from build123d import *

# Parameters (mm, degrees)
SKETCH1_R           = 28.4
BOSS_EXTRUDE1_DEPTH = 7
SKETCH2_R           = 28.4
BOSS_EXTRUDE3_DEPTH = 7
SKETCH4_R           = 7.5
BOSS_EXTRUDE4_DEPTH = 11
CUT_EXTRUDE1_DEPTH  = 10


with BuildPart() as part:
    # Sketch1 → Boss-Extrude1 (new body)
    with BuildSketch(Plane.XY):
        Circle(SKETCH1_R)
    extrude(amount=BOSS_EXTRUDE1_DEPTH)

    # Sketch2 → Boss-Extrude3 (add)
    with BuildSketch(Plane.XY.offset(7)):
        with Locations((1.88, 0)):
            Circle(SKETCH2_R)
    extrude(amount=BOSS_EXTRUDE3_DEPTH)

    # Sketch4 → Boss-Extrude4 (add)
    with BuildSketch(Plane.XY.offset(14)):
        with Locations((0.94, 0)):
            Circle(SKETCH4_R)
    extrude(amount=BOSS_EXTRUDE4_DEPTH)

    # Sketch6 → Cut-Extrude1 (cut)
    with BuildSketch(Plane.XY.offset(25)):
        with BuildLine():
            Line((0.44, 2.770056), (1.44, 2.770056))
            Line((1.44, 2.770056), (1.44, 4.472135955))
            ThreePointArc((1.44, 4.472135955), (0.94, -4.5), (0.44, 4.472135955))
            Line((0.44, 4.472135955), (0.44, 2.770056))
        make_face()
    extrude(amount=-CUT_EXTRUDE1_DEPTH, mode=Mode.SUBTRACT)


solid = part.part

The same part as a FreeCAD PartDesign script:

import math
import FreeCAD as App
import Part
import Sketcher

doc = App.newDocument("Part")
body = doc.addObject("PartDesign::Body", "Body")

sketch1 = body.newObject("Sketcher::SketchObject", "Sketch")
sketch1.AttachmentSupport = (doc.getObject("XY_Plane"), [""])
sketch1.MapMode = "FlatFace"
sketch1.addGeometry(Part.Circle(App.Vector(0, 0, 0), App.Vector(0, 0, 1), 28), False)
sketch1.addConstraint([
    Sketcher.Constraint("Coincident", 0, 3, -1, 1),
    Sketcher.Constraint("Diameter", 0, 56.8),
])
pad1 = body.newObject("PartDesign::Pad", "Pad")
pad1.Profile = sketch1
pad1.Length = 7

sketch2 = body.newObject("Sketcher::SketchObject", "Sketch001")
sketch2.AttachmentSupport = (doc.getObject("XY_Plane"), [""])
sketch2.MapMode = "FlatFace"
sketch2.AttachmentOffset = App.Placement(App.Vector(0, 0, 7), App.Rotation())
sketch2.addGeometry(Part.Circle(App.Vector(2, 0, 0), App.Vector(0, 0, 1), 28), False)
sketch2.addConstraint([
    Sketcher.Constraint("PointOnObject", 0, 3, -1),
    Sketcher.Constraint("Diameter", 0, 56.8),
    Sketcher.Constraint("DistanceX", -1, 1, 0, 3, 1.88),
])
pad2 = body.newObject("PartDesign::Pad", "Pad001")
pad2.Profile = sketch2
pad2.Length = 7

sketch3 = body.newObject("Sketcher::SketchObject", "Sketch002")
sketch3.AttachmentSupport = (doc.getObject("XY_Plane"), [""])
sketch3.MapMode = "FlatFace"
sketch3.AttachmentOffset = App.Placement(App.Vector(0, 0, 14), App.Rotation())
sketch3.addGeometry(Part.Circle(App.Vector(1, 0, 0), App.Vector(0, 0, 1), 8), False)
sketch3.addConstraint([
    Sketcher.Constraint("PointOnObject", 0, 3, -1),
    Sketcher.Constraint("Diameter", 0, 15.0),
    Sketcher.Constraint("DistanceX", -1, 1, 0, 3, 0.94),
])
pad3 = body.newObject("PartDesign::Pad", "Pad002")
pad3.Profile = sketch3
pad3.Length = 11

sketch4 = body.newObject("Sketcher::SketchObject", "Sketch003")
sketch4.AttachmentSupport = (doc.getObject("XY_Plane"), [""])
sketch4.MapMode = "FlatFace"
sketch4.AttachmentOffset = App.Placement(App.Vector(0, 0, 25), App.Rotation())
sketch4.addGeometry([
    Part.LineSegment(App.Vector(1.4, 2.8, 0), App.Vector(0.4, 2.8, 0)),
    Part.LineSegment(App.Vector(0.4, 2.8, 0), App.Vector(0.4, 4.5, 0)),
    Part.ArcOfCircle(Part.Circle(App.Vector(0.9, 0, 0), App.Vector(0, 0, 1), 4.5), math.radians(96), math.radians(444)),
    Part.LineSegment(App.Vector(1.4, 4.5, 0), App.Vector(1.4, 2.8, 0)),
], False)
sketch4.addConstraint([
    Sketcher.Constraint("Coincident", 0, 2, 1, 1),
    Sketcher.Constraint("Coincident", 1, 2, 2, 1),
    Sketcher.Constraint("Coincident", 2, 2, 3, 1),
    Sketcher.Constraint("Coincident", 3, 2, 0, 1),
    Sketcher.Constraint("Horizontal", 0),
    Sketcher.Constraint("Vertical", 1),
    Sketcher.Constraint("Vertical", 3),
    Sketcher.Constraint("PointOnObject", 2, 3, -1),
    Sketcher.Constraint("Horizontal", 1, 2, 2, 2),
    Sketcher.Constraint("Radius", 2, 4.5),
    Sketcher.Constraint("DistanceX", 0, 2, 0, 1, 1.0),
    Sketcher.Constraint("DistanceX", -1, 1, 2, 3, 0.94),
    Sketcher.Constraint("DistanceY", 1, 1, 1, 2, 1.70208),
])
pocket1 = body.newObject("PartDesign::Pocket", "Pocket")
pocket1.Profile = sketch4
pocket1.Length = 10

doc.recompute()
